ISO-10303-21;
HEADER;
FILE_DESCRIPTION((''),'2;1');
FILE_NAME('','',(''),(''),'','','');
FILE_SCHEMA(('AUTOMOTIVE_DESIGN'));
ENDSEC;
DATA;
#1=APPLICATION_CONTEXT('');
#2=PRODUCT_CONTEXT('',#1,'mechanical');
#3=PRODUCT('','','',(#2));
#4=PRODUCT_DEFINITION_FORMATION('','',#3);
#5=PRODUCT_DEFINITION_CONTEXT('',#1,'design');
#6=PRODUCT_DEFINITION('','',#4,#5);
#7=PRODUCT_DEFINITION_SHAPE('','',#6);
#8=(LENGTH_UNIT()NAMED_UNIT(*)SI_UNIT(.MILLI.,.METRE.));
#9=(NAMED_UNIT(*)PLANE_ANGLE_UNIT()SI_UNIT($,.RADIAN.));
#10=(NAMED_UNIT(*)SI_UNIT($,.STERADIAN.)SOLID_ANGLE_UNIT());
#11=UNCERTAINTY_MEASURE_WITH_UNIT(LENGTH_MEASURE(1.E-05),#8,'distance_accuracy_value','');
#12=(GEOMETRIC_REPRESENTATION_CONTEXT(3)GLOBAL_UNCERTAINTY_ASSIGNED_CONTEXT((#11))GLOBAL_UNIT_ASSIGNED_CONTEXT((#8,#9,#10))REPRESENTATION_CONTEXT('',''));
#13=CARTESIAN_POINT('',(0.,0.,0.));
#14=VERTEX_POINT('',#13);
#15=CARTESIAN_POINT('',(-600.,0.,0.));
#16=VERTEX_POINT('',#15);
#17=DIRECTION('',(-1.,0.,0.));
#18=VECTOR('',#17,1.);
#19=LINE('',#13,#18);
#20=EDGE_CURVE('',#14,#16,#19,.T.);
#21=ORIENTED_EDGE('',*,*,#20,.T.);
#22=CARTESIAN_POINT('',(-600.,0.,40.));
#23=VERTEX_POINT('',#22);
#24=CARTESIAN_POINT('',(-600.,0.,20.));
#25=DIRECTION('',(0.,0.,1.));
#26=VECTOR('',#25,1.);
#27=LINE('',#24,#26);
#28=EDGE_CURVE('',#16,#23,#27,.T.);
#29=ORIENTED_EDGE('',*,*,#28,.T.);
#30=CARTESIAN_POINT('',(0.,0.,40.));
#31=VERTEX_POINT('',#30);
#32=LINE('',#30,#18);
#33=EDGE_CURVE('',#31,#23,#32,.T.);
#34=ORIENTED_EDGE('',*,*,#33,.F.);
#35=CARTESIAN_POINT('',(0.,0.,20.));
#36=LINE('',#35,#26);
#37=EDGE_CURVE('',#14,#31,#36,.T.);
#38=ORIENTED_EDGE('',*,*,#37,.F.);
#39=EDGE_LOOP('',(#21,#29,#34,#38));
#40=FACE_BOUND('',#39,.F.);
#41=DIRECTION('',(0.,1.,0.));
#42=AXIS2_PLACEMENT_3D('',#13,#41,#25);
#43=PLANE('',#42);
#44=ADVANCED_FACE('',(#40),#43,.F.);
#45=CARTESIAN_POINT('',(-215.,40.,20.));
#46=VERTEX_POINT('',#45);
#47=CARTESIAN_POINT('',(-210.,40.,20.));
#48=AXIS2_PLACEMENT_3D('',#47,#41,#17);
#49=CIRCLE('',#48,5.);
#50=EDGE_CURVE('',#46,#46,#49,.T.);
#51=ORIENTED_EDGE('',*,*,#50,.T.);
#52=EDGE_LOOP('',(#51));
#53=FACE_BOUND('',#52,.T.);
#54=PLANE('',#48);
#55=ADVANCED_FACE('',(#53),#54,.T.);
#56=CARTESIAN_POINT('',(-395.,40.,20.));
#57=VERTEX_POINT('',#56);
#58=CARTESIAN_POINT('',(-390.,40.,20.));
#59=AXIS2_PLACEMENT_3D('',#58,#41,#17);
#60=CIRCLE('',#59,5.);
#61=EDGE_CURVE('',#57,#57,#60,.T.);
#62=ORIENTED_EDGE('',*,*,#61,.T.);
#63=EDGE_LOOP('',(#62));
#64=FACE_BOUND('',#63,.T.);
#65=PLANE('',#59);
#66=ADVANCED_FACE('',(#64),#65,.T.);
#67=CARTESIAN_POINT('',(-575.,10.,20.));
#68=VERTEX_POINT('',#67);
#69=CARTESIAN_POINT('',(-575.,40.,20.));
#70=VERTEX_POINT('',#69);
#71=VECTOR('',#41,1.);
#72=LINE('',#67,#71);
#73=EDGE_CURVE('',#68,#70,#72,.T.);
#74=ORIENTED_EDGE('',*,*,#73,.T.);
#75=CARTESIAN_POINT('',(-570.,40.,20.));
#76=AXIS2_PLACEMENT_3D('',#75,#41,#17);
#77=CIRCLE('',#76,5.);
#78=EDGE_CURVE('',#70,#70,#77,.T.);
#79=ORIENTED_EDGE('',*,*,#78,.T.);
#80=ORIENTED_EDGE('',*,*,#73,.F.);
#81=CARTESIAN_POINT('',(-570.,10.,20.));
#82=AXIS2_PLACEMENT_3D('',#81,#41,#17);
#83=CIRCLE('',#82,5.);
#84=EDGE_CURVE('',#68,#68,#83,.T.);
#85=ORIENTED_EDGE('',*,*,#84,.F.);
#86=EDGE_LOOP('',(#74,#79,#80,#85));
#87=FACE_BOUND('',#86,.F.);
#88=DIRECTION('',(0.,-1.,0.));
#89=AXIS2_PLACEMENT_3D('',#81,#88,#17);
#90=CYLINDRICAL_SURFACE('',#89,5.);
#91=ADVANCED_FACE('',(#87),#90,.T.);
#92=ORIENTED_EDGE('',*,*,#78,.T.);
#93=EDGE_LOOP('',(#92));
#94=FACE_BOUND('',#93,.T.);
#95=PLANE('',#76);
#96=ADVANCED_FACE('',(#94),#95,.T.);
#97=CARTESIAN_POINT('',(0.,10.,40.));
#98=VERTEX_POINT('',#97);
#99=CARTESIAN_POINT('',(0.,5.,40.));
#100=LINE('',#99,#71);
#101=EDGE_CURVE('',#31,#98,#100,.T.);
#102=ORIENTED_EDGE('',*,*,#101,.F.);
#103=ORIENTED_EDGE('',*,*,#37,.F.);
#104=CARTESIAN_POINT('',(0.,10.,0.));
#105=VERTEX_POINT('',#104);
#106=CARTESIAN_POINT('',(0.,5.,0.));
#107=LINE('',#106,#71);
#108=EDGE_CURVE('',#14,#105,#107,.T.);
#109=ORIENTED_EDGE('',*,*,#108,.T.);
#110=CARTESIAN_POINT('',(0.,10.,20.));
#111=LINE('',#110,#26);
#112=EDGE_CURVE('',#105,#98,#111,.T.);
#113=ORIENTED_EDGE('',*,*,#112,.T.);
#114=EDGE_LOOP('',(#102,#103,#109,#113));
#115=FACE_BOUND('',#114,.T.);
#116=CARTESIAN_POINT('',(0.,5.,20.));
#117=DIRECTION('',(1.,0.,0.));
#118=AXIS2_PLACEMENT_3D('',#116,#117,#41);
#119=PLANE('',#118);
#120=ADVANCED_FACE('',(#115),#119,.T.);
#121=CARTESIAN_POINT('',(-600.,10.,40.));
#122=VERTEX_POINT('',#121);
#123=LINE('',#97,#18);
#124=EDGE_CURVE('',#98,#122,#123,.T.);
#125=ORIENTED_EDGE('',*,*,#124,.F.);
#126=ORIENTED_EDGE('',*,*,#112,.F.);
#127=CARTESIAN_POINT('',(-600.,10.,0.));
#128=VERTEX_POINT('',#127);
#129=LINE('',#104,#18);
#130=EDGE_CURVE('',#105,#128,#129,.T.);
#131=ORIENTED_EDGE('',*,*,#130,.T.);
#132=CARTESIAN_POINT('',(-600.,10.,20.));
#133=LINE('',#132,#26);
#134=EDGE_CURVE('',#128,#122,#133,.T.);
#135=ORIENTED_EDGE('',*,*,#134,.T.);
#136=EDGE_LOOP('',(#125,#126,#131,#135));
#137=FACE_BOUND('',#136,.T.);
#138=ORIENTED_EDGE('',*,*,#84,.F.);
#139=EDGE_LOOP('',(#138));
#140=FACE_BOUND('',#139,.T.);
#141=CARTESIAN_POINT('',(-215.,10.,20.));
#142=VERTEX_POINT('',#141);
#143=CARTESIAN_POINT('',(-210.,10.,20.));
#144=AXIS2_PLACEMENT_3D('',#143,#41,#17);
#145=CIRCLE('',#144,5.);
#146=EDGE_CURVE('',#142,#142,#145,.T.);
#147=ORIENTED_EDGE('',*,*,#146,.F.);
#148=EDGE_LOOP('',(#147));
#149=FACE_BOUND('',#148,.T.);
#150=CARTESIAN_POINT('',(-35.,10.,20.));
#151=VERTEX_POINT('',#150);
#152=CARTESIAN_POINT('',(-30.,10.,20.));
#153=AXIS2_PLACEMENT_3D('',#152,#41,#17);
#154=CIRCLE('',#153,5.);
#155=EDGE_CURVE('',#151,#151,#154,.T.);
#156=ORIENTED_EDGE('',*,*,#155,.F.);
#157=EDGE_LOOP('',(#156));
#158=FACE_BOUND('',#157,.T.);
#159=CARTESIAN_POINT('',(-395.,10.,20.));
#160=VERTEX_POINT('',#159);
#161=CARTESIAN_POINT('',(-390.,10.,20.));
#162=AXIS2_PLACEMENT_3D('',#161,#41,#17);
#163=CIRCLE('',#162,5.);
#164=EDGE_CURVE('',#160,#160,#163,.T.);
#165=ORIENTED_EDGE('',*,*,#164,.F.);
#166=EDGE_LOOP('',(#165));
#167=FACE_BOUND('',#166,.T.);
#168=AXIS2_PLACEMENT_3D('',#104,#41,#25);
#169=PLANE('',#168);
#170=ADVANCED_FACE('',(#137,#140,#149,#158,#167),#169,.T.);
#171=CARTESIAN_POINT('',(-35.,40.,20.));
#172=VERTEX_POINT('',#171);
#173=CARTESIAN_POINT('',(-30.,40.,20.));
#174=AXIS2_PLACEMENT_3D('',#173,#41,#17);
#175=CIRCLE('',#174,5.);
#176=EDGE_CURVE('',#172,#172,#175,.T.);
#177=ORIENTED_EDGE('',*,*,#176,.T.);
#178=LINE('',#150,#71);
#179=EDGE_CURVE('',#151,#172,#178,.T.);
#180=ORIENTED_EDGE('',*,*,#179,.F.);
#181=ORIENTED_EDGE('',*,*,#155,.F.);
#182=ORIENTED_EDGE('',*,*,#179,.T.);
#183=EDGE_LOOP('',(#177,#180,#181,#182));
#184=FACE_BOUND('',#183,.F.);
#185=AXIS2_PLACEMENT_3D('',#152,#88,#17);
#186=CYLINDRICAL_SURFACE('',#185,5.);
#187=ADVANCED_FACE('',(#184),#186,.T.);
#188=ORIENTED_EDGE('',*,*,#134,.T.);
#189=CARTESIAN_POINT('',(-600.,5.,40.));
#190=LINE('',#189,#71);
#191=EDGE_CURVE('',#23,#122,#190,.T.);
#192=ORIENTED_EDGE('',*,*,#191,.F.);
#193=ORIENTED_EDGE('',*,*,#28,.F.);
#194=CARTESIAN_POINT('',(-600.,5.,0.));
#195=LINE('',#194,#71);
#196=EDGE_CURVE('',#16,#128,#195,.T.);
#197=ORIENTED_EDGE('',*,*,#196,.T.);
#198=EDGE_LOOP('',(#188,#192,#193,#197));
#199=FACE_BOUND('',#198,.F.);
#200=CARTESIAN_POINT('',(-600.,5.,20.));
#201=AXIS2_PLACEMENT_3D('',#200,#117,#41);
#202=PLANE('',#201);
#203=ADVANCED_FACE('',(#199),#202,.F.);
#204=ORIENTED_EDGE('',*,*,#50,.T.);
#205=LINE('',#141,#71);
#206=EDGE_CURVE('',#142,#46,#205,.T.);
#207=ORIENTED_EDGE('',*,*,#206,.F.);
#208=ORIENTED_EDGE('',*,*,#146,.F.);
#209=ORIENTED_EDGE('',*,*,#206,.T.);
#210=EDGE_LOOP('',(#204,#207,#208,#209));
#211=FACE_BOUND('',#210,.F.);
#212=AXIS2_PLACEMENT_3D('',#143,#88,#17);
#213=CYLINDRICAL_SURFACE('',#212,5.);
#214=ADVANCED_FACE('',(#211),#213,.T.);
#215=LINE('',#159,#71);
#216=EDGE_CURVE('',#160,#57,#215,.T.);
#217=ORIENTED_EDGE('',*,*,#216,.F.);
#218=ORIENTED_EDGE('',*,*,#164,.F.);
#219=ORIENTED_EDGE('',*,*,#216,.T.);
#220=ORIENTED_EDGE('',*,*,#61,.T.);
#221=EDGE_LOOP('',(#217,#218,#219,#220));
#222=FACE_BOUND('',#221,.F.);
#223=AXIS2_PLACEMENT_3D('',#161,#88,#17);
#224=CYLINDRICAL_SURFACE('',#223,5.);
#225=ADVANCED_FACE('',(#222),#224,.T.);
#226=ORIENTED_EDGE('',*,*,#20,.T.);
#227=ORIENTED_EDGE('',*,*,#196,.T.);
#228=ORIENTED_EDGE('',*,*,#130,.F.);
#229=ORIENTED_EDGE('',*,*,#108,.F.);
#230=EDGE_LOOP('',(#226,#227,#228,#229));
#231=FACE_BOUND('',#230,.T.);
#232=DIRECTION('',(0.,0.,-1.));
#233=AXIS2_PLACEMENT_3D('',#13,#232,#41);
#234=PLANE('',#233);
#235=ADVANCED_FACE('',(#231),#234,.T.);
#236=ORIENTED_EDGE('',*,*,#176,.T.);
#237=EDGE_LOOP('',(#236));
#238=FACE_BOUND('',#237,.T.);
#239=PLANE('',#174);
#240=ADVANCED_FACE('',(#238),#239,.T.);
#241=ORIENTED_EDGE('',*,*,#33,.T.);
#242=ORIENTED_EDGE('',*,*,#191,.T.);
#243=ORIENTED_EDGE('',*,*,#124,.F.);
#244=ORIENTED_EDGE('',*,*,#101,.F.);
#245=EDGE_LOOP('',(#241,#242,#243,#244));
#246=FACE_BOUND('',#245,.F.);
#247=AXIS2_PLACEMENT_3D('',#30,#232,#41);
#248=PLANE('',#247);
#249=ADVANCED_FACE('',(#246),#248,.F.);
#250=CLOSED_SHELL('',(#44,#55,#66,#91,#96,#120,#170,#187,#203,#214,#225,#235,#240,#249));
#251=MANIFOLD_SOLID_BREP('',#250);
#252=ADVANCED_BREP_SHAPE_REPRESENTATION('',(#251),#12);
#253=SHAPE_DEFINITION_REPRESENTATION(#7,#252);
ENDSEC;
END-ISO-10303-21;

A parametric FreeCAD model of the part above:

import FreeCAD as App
import Part
import Sketcher
from FreeCAD import Vector
Q = App.Units.Quantity

doc = App.newDocument("Part")
body = doc.addObject("PartDesign::Body", "Body")

# Sketch on YZ plane
sketch1 = doc.addObject("Sketcher::SketchObject", "Sketch")
body.addObject(sketch1)
sketch1.AttachmentSupport = (doc.YZ_Plane, [""])
sketch1.MapMode = "FlatFace"
sketch1.addGeometry([
    Part.LineSegment(Vector(0, 40, 0), Vector(0, 0, 0)),
    Part.LineSegment(Vector(0, 0, 0), Vector(10, 0, 0)),
    Part.LineSegment(Vector(10, 0, 0), Vector(10, 40, 0)),
    Part.LineSegment(Vector(10, 40, 0), Vector(0, 40, 0)),
], False)
sketch1.addConstraint([
    Sketcher.Constraint("Coincident", 0, 2, 1, 1),
    Sketcher.Constraint("Coincident", 1, 2, 2, 1),
    Sketcher.Constraint("Coincident", 2, 2, 3, 1),
    Sketcher.Constraint("Coincident", 3, 2, 0, 1),
    Sketcher.Constraint("Vertical", 0),
    Sketcher.Constraint("Horizontal", 1),
    Sketcher.Constraint("Vertical", 2),
    Sketcher.Constraint("Horizontal", 3),
    Sketcher.Constraint("Coincident", 0, 2, -1, 1),
    Sketcher.Constraint("DistanceX", 1, 1, 1, 2, Q("10 mm")),
    Sketcher.Constraint("DistanceY", 0, 2, 0, 1, Q("40 mm")),
])
pad1 = doc.addObject("PartDesign::Pad", "Pad")
body.addObject(pad1)
pad1.Profile = sketch1
pad1.Length = 600
pad1.Reversed = True

# Sketch on XZ plane
sketch2 = doc.addObject("Sketcher::SketchObject", "Sketch001")
body.addObject(sketch2)
sketch2.AttachmentSupport = (doc.XZ_Plane, [""])
sketch2.MapMode = "FlatFace"
sketch2.AttachmentOffset = App.Placement(Vector(0, 0, -10), App.Rotation())
sketch2.addGeometry([
    Part.Circle(Vector(-570, 20, 0), Vector(0, 0, 1), 5),
    Part.Circle(Vector(-390, 20, 0), Vector(0, 0, 1), 5),
    Part.Circle(Vector(-210, 20, 0), Vector(0, 0, 1), 5),
    Part.Circle(Vector(-30, 20, 0), Vector(0, 0, 1), 5),
], False)
sketch2.addConstraint([
    Sketcher.Constraint("Equal", 0, 1),
    Sketcher.Constraint("Equal", 1, 2),
    Sketcher.Constraint("Equal", 2, 3),
    Sketcher.Constraint("Horizontal", 0, 3, 1, 3),
    Sketcher.Constraint("Horizontal", 1, 3, 2, 3),
    Sketcher.Constraint("Horizontal", 2, 3, 3, 3),
    Sketcher.Constraint("Diameter", 0, Q("10 mm")),
    Sketcher.Constraint("DistanceX", 0, 3, -1, 1, Q("570 mm")),
    Sketcher.Constraint("DistanceY", -1, 1, 0, 3, Q("20 mm")),
    Sketcher.Constraint("DistanceX", 1, 3, -1, 1, Q("390 mm")),
    Sketcher.Constraint("DistanceX", 2, 3, -1, 1, Q("210 mm")),
    Sketcher.Constraint("DistanceX", 3, 3, -1, 1, Q("30 mm")),
])
pad2 = doc.addObject("PartDesign::Pad", "Pad001")
body.addObject(pad2)
pad2.Profile = sketch2
pad2.Length = 30
pad2.Reversed = True

doc.recompute()
